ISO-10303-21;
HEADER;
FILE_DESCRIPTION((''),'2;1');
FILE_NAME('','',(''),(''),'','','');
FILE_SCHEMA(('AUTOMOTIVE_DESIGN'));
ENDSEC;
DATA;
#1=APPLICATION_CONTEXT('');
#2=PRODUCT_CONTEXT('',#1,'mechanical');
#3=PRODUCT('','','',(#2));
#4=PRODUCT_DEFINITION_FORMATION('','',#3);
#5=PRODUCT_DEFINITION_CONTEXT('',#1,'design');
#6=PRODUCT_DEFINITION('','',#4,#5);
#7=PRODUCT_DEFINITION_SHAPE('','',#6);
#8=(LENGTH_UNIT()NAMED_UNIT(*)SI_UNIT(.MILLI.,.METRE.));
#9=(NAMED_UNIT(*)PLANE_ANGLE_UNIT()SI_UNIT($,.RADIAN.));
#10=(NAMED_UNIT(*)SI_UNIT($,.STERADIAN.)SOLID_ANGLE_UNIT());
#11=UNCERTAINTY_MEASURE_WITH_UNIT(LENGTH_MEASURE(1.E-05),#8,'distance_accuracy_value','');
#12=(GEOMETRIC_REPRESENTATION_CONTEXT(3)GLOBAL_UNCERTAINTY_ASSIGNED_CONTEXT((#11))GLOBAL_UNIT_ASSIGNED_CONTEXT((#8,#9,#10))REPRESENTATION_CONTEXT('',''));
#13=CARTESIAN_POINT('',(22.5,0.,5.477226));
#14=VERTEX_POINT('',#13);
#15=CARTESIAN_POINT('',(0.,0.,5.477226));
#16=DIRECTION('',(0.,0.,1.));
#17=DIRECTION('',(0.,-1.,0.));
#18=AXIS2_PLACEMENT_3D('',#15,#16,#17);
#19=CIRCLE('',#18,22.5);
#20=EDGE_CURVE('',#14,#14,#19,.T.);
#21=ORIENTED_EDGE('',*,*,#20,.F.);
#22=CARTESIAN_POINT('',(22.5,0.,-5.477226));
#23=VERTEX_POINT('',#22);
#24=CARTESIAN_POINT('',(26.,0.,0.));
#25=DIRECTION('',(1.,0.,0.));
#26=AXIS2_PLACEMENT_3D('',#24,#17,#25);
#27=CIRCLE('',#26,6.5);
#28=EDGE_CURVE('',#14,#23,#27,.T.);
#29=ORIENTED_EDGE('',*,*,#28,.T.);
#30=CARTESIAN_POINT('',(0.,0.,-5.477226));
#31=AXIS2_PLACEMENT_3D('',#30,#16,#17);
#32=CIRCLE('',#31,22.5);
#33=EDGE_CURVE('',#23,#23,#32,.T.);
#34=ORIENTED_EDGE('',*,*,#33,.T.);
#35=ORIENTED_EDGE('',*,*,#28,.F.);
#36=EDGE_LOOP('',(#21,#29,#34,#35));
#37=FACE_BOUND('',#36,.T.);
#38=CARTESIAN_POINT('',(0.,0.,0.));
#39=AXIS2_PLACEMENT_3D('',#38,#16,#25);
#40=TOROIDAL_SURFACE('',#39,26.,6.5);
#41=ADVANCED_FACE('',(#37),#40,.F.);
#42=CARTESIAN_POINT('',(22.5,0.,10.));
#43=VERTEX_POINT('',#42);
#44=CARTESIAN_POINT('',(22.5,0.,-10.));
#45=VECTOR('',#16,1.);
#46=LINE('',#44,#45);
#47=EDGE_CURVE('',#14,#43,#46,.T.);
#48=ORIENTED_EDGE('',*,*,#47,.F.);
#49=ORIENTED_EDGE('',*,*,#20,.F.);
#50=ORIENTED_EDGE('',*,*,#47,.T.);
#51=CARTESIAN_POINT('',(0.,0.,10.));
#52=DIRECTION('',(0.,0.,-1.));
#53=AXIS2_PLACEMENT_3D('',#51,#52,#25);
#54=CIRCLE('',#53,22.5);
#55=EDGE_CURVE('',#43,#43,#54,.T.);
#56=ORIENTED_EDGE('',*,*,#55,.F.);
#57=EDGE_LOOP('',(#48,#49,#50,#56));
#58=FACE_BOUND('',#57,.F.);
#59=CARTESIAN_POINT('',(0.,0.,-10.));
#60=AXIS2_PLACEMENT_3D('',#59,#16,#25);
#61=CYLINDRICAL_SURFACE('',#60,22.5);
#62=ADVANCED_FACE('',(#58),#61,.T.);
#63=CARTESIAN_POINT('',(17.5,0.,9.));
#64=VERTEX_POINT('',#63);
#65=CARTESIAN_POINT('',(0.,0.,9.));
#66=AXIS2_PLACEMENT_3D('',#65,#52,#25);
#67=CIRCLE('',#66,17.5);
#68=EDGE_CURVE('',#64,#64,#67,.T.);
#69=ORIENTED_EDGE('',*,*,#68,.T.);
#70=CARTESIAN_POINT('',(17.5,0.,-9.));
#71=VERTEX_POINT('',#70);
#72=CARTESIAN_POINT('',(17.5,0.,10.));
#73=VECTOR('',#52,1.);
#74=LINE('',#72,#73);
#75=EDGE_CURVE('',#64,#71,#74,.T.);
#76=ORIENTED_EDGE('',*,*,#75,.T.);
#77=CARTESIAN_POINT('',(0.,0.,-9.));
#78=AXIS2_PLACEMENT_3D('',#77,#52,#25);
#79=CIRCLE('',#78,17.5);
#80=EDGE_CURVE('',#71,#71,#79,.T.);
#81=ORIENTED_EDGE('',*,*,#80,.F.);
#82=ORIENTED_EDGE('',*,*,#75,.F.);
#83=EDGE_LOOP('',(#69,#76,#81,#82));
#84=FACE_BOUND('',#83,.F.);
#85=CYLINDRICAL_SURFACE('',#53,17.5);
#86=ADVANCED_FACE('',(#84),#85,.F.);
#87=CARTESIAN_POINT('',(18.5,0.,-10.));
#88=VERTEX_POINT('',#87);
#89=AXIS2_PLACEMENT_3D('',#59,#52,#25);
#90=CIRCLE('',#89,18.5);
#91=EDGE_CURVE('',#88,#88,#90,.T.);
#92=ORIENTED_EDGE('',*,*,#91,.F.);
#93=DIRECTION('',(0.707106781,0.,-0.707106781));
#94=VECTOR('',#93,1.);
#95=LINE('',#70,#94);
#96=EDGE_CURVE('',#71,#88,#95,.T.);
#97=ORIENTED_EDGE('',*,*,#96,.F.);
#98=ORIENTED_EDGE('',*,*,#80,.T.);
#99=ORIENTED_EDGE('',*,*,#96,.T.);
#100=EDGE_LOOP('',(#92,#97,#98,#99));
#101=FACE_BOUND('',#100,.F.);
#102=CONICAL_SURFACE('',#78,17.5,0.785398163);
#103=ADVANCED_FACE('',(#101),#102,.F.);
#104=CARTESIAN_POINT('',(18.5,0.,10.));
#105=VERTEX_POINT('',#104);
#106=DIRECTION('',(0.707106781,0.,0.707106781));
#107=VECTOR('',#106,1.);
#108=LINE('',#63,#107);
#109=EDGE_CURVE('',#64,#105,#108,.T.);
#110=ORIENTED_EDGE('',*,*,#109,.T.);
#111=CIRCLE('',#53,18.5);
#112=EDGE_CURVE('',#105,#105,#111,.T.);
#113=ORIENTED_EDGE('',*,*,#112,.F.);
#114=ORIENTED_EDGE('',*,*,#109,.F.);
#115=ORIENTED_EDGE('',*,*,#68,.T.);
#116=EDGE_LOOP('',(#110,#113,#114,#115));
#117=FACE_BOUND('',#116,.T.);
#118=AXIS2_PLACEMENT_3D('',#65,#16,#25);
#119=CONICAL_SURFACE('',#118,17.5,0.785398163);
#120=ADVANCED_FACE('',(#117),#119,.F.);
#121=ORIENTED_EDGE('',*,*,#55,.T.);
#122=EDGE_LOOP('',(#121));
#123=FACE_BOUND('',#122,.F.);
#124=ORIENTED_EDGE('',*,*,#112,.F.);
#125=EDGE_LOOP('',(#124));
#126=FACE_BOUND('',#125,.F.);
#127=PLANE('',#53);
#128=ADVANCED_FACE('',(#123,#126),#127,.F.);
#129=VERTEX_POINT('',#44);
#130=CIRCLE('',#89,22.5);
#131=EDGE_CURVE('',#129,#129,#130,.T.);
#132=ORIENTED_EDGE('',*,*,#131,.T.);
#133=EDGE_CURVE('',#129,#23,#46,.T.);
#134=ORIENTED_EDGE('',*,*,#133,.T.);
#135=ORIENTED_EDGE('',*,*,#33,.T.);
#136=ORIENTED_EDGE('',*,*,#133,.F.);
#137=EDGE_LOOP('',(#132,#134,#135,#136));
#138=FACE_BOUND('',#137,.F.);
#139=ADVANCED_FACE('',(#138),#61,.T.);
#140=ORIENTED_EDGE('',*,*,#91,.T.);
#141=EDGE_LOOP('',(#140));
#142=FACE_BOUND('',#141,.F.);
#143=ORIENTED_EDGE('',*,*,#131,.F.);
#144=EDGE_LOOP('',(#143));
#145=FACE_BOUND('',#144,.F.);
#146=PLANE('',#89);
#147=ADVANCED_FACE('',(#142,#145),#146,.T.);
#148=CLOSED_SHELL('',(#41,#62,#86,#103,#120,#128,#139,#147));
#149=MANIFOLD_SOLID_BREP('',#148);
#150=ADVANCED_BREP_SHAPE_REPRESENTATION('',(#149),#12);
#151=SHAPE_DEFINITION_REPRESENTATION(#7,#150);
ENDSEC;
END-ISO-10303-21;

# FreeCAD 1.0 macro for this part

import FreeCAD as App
import Part
import Sketcher
from FreeCAD import Vector
Q = App.Units.Quantity


def edges_at(feature, points):
    """Names of the edges that pass closest to the given points."""
    edges = feature.Shape.Edges
    near = lambda p: min(range(len(edges)), key=lambda i: edges[i].distToShape(Part.Vertex(*p))[0])
    return sorted({f"Edge{near(p) + 1}" for p in points})

doc = App.newDocument("Part")
body = doc.addObject("PartDesign::Body", "Body")

# Sketch on XZ plane
sketch1 = doc.addObject("Sketcher::SketchObject", "Sketch")
body.addObject(sketch1)
sketch1.AttachmentSupport = (doc.XZ_Plane, [""])
sketch1.MapMode = "FlatFace"
sketch1.addGeometry(Part.LineSegment(Vector(22, 10, 0), Vector(18, 10, 0)), False)
sketch1.addGeometry(Part.LineSegment(Vector(18, 10, 0), Vector(18, -10, 0)), False)
sketch1.addGeometry(Part.LineSegment(Vector(18, -10, 0), Vector(22, -10, 0)), False)
sketch1.addGeometry(Part.LineSegment(Vector(22, -10, 0), Vector(22, 10, 0)), False)
sketch1.addConstraint(Sketcher.Constraint("Coincident", 0, 2, 1, 1))
sketch1.addConstraint(Sketcher.Constraint("Coincident", 1, 2, 2, 1))
sketch1.addConstraint(Sketcher.Constraint("Coincident", 2, 2, 3, 1))
sketch1.addConstraint(Sketcher.Constraint("Coincident", 3, 2, 0, 1))
sketch1.addConstraint(Sketcher.Constraint("Horizontal", 0))
sketch1.addConstraint(Sketcher.Constraint("Vertical", 1))
sketch1.addConstraint(Sketcher.Constraint("Horizontal", 2))
sketch1.addConstraint(Sketcher.Constraint("Vertical", 3))
sketch1.addConstraint(Sketcher.Constraint("DistanceX", -1, 1, 2, 2, Q("22.5 mm")))
sketch1.addConstraint(Sketcher.Constraint("DistanceX", 0, 2, 0, 1, Q("5 mm")))
sketch1.addConstraint(Sketcher.Constraint("DistanceY", 1, 2, 1, 1, Q("20 mm")))
sketch1.addConstraint(Sketcher.Constraint("DistanceY", -1, 1, 0, 2, Q("10 mm")))
revolution = doc.addObject("PartDesign::Revolution", "Revolution")
body.addObject(revolution)
revolution.Profile = sketch1
revolution.ReferenceAxis = (sketch1, ["V_Axis"])
revolution.Angle = 360
doc.recompute()

chamfer = doc.addObject("PartDesign::Chamfer", "Chamfer")
body.addObject(chamfer)
chamfer.Base = (revolution, edges_at(revolution, [(-17.5, 0, 10), (-17.5, 0, -10)]))
chamfer.Size = 1

# Sketch on XZ plane
sketch2 = doc.addObject("Sketcher::SketchObject", "Sketch001")
body.addObject(sketch2)
sketch2.AttachmentSupport = (doc.XZ_Plane, [""])
sketch2.MapMode = "FlatFace"
sketch2.addGeometry(Part.Circle(Vector(26, 0, 0), Vector(0, 0, 1), 6), False)
sketch2.addConstraint(Sketcher.Constraint("PointOnObject", 0, 3, -1))
sketch2.addConstraint(Sketcher.Constraint("Diameter", 0, Q("13 mm")))
sketch2.addConstraint(Sketcher.Constraint("DistanceX", -1, 1, 0, 3, Q("26 mm")))
groove = doc.addObject("PartDesign::Groove", "Groove")
body.addObject(groove)
groove.Profile = sketch2
groove.ReferenceAxis = (sketch2, ["V_Axis"])
groove.Angle = 360

doc.recompute()
